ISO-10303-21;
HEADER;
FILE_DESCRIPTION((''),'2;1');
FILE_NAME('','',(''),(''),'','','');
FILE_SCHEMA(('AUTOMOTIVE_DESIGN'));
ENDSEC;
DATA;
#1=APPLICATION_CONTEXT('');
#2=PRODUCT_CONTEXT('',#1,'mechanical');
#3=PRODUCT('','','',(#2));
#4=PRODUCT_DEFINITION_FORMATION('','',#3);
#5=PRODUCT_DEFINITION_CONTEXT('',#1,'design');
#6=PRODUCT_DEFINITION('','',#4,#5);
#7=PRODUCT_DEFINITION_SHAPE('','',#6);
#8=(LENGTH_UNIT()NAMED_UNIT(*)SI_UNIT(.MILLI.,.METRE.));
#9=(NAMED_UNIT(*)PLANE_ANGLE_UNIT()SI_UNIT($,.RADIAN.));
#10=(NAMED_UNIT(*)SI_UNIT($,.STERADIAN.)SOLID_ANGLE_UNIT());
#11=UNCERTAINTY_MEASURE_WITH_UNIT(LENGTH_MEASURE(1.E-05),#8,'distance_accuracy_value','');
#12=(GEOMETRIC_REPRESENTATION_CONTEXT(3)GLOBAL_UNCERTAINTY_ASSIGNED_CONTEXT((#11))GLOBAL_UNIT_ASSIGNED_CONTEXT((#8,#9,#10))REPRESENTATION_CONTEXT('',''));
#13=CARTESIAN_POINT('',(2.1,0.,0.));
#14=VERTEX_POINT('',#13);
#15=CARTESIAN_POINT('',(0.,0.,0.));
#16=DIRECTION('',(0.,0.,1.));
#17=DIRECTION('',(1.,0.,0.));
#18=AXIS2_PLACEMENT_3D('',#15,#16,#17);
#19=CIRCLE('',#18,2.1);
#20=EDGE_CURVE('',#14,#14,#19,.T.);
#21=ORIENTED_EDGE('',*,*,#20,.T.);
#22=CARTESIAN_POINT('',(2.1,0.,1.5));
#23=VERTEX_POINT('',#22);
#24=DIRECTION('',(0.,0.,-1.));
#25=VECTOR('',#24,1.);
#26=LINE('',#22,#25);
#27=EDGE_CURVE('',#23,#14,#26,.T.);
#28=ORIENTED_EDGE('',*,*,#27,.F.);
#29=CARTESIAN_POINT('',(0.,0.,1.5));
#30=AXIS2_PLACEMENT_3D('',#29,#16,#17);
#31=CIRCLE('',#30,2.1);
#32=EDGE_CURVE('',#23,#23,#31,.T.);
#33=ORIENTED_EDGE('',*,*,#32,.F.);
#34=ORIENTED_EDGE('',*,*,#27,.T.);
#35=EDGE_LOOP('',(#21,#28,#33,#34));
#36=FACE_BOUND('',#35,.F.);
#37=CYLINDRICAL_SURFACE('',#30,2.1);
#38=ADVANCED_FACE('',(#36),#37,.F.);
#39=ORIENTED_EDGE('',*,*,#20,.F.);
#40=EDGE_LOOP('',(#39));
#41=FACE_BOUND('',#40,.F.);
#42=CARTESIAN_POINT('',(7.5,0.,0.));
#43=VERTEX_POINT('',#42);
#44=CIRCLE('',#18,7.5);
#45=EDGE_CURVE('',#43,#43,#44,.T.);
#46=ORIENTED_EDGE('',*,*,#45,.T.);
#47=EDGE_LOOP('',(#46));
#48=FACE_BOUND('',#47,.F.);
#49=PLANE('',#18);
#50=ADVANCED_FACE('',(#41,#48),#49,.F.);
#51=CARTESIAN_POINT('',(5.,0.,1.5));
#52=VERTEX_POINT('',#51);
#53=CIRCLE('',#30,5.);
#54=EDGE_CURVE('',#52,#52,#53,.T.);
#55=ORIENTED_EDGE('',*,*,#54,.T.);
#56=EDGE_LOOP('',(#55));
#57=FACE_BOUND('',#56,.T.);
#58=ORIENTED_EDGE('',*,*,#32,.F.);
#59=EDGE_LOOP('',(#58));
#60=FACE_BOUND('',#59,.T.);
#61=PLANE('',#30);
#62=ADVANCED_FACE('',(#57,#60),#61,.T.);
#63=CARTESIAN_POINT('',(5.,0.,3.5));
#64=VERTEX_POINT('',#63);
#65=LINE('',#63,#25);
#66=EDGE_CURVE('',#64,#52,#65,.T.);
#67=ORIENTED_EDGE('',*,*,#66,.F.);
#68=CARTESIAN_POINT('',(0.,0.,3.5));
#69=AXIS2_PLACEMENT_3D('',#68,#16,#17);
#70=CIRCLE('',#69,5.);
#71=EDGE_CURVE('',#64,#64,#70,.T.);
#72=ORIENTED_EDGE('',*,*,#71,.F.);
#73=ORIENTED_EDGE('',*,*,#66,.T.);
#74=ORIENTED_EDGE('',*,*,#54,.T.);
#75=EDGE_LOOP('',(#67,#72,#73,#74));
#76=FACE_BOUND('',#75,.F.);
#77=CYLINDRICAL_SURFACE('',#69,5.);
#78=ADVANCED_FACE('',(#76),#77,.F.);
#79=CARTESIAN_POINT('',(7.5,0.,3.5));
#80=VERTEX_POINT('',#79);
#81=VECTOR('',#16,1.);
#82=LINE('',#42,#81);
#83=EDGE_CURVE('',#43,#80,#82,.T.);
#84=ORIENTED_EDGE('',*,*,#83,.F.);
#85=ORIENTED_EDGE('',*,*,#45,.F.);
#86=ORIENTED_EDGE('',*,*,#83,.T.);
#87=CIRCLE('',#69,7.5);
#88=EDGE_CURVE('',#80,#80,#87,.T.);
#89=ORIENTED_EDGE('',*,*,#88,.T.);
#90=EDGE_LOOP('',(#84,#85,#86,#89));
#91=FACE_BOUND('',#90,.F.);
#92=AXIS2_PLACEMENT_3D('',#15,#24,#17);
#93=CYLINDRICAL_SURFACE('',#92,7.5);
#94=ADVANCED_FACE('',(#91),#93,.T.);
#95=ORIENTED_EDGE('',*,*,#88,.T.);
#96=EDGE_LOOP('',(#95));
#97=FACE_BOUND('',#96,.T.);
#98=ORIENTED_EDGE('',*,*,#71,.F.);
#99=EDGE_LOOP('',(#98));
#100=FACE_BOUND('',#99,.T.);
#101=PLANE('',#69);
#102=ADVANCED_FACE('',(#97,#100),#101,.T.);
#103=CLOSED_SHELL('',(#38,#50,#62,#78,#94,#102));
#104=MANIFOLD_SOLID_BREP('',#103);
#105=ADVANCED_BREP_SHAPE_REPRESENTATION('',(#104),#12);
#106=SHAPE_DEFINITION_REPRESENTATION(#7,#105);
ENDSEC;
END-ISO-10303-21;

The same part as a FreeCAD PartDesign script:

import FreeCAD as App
import Part
import Sketcher
Q = App.Units.Quantity

doc = App.newDocument("Part")
params = doc.addObject("Spreadsheet::Sheet", "Params")
for row, (alias, value) in enumerate([
    ("sketch1_diameter", "15 mm"),
    ("pad1_length", "3.5 mm"),
    ("sketch2_diameter", "10 mm"),
    ("pocket1_length", "2 mm"),
    ("sketch3_diameter", "4.2 mm"),
    ("pocket2_length", "2 mm"),
], start=1):
    params.set(f"A{row}", alias)
    params.set(f"B{row}", "=" + value)
    params.setAlias(f"B{row}", alias)

body = doc.addObject("PartDesign::Body", "Body")

# Sketch on XY plane
sketch1 = body.newObject("Sketcher::SketchObject", "Sketch")
sketch1.AttachmentSupport = (doc.getObject("XY_Plane"), [""])
sketch1.MapMode = "FlatFace"
sketch1.addGeometry(Part.Circle(App.Vector(0, 0, 0), App.Vector(0, 0, 1), 8), False)
sketch1.addConstraint([
    Sketcher.Constraint("Coincident", 0, 3, -1, 1),
    Sketcher.Constraint("Diameter", 0, Q("15 mm")),
])
sketch1.setExpression("Constraints[1]", "Params.sketch1_diameter")
pad1 = body.newObject("PartDesign::Pad", "Pad")
pad1.Profile = sketch1
pad1.setExpression("Length", "Params.pad1_length")

# Sketch on XY plane
sketch2 = body.newObject("Sketcher::SketchObject", "Sketch001")
sketch2.AttachmentSupport = (doc.getObject("XY_Plane"), [""])
sketch2.MapMode = "FlatFace"
sketch2.AttachmentOffset = App.Placement(App.Vector(0, 0, 3.5), App.Rotation())
sketch2.addGeometry(Part.Circle(App.Vector(0, 0, 0), App.Vector(0, 0, 1), 5), False)
sketch2.addConstraint([
    Sketcher.Constraint("Coincident", 0, 3, -1, 1),
    Sketcher.Constraint("Diameter", 0, Q("10 mm")),
])
sketch2.setExpression("Constraints[1]", "Params.sketch2_diameter")
pocket1 = body.newObject("PartDesign::Pocket", "Pocket")
pocket1.Profile = sketch2
pocket1.setExpression("Length", "Params.pocket1_length")

# Sketch on XY plane
sketch3 = body.newObject("Sketcher::SketchObject", "Sketch002")
sketch3.AttachmentSupport = (doc.getObject("XY_Plane"), [""])
sketch3.MapMode = "FlatFace"
sketch3.AttachmentOffset = App.Placement(App.Vector(0, 0, 1.5), App.Rotation())
sketch3.addGeometry(Part.Circle(App.Vector(0, 0, 0), App.Vector(0, 0, 1), 2.1), False)
sketch3.addConstraint([
    Sketcher.Constraint("Coincident", 0, 3, -1, 1),
    Sketcher.Constraint("Diameter", 0, Q("4.2 mm")),
])
sketch3.setExpression("Constraints[1]", "Params.sketch3_diameter")
pocket2 = body.newObject("PartDesign::Pocket", "Pocket001")
pocket2.Profile = sketch3
pocket2.setExpression("Length", "Params.pocket2_length")

doc.recompute()
